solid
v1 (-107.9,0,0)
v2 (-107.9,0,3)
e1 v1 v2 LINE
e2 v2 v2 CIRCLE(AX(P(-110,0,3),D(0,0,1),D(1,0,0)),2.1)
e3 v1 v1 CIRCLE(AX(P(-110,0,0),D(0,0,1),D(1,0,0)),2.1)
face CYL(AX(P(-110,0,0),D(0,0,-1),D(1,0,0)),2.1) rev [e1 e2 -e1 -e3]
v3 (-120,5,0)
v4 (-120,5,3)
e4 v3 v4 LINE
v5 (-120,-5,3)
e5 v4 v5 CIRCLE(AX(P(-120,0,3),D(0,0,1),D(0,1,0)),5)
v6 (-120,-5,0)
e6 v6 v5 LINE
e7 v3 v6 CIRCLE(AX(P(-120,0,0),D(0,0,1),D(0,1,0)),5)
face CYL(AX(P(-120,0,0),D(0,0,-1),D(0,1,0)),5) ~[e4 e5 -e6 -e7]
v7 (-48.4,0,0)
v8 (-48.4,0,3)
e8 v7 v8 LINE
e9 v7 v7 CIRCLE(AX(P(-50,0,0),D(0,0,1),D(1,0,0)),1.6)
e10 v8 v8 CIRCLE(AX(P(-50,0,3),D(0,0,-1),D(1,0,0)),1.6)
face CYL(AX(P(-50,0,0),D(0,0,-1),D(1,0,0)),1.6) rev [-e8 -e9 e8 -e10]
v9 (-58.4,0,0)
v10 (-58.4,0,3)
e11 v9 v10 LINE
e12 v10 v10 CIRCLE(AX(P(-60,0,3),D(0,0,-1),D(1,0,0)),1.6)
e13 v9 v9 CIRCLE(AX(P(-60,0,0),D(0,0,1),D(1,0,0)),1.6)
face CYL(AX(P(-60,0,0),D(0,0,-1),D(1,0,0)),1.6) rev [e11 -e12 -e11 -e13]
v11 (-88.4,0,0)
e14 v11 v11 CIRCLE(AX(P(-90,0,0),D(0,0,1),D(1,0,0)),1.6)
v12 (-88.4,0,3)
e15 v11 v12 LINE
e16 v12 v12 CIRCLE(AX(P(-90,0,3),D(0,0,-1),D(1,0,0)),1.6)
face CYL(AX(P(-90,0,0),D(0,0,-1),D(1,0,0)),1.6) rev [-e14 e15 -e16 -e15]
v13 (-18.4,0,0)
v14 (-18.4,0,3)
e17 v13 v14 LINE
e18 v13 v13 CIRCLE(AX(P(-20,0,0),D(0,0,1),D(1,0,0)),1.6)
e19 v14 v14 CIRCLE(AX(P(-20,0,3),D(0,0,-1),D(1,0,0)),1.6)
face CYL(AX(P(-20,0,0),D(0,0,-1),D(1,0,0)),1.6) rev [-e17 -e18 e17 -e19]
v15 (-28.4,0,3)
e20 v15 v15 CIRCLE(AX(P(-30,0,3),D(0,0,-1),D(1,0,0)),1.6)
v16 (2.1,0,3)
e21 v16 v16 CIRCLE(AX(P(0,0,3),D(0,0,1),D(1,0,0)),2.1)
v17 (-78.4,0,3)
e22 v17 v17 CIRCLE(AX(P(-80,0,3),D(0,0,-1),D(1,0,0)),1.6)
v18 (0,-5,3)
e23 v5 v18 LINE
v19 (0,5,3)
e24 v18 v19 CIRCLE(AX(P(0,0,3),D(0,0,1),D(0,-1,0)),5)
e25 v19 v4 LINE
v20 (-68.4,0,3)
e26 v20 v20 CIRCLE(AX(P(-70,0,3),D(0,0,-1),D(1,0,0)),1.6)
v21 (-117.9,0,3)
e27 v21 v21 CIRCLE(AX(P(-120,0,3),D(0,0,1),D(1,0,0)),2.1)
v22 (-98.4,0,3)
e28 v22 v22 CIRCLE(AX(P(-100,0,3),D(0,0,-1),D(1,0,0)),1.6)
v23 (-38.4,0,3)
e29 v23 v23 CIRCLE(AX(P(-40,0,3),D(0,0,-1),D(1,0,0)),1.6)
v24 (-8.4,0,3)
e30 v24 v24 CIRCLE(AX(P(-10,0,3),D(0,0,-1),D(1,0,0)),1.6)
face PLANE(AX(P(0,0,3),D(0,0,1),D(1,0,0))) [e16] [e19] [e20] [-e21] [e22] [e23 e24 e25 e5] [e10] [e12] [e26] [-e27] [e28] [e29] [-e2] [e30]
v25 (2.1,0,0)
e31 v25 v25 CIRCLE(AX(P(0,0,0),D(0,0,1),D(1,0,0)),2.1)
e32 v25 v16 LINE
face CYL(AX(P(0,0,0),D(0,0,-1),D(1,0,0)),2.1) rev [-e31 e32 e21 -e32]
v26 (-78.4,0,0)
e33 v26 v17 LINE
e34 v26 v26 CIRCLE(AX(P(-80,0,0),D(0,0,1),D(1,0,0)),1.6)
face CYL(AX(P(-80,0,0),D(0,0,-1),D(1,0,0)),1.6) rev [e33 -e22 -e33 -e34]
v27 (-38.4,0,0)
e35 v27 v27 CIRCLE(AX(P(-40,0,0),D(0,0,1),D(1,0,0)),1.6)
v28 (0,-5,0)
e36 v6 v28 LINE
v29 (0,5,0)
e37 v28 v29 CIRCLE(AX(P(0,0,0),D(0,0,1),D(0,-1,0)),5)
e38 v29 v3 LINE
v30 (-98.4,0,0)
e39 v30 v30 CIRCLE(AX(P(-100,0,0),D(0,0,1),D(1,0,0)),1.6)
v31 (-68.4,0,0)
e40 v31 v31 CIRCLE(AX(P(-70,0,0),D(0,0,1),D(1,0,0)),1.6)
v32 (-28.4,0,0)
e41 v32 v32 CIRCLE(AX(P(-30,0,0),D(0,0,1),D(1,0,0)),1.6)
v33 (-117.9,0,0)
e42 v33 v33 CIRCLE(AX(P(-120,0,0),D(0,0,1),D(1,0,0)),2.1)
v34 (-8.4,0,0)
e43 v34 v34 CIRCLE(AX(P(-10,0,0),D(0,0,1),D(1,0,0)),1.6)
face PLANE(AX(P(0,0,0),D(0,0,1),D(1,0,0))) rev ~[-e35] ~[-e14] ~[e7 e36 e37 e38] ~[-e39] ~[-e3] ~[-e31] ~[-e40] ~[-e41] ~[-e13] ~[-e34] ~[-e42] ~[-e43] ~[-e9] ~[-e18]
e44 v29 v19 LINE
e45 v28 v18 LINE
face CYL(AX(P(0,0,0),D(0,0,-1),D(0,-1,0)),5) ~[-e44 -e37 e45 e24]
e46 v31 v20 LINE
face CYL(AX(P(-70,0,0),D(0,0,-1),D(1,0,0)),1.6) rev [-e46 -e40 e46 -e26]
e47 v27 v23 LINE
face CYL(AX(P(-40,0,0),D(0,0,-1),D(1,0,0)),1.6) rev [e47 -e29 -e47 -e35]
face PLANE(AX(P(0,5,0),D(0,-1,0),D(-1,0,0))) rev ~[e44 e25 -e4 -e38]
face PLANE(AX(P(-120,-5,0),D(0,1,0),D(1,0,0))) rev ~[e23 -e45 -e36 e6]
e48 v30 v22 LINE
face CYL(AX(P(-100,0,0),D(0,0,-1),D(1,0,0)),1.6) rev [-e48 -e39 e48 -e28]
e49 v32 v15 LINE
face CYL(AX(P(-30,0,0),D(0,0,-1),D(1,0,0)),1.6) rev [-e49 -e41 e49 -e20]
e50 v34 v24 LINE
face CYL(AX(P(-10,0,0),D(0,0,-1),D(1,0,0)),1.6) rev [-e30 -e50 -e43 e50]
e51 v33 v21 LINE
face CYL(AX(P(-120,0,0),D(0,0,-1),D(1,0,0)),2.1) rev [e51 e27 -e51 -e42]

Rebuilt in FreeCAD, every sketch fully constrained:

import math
import FreeCAD as App
import Part
import Sketcher

V = App.Vector

doc = App.newDocument("Part")
params = doc.addObject("Spreadsheet::Sheet", "Params")
for row, (alias, value) in enumerate([
    ("sketch1_radius", "5 mm"),
    ("sketch1_diameter", "4.2 mm"),
    ("sketch1_width", "120 mm"),
    ("pad1_length", "3 mm"),
    ("sketch2_diameter", "3.2 mm"),
    ("pocket1_length", "10 mm"),
], start=1):
    params.set(f"A{row}", alias)
    params.set(f"B{row}", "=" + value)
    params.setAlias(f"B{row}", alias)

body = doc.addObject("PartDesign::Body", "Body")

# Sketch on XY plane
sketch1 = doc.addObject("Sketcher::SketchObject", "Sketch")
body.addObject(sketch1)
sketch1.AttachmentSupport = (doc.XY_Plane, [""])
sketch1.MapMode = "FlatFace"
sketch1.addGeometry([
    Part.ArcOfCircle(Part.Circle(V(-120, 0, 0), V(0, 0, 1), 5), math.radians(90), math.radians(270)),  # 0
    Part.LineSegment(V(-120, -5, 0), V(0, -5, 0)),  # 1
    Part.ArcOfCircle(Part.Circle(V(0, 0, 0), V(0, 0, 1), 5), math.radians(-90), math.radians(90)),  # 2
    Part.LineSegment(V(0, 5, 0), V(-120, 5, 0)),  # 3
    Part.Circle(V(-120, 0, 0), V(0, 0, 1), 2.1),  # 4
    Part.Circle(V(-110, 0, 0), V(0, 0, 1), 2.1),  # 5
    Part.Circle(V(0, 0, 0), V(0, 0, 1), 2.1),  # 6
], False)
sketch1.addConstraint([
    Sketcher.Constraint("Tangent", 0, 2, 1, 1),
    Sketcher.Constraint("Tangent", 1, 2, 2, 1),
    Sketcher.Constraint("Tangent", 2, 2, 3, 1),
    Sketcher.Constraint("Tangent", 3, 2, 0, 1),
    Sketcher.Constraint("Horizontal", 1),
    Sketcher.Constraint("Horizontal", 3),
    Sketcher.Constraint("Coincident", 2, 3, -1, 1),
    Sketcher.Constraint("Coincident", 6, 3, -1, 1),
    Sketcher.Constraint("Coincident", 4, 3, 0, 3),
    Sketcher.Constraint("Equal", 4, 5),
    Sketcher.Constraint("Equal", 5, 6),
    Sketcher.Constraint("PointOnObject", 5, 3, -1),
    Sketcher.Constraint("Radius", 0, 5.0),
    Sketcher.Constraint("Diameter", 4, 4.2),
    Sketcher.Constraint("DistanceX", 1, 1, 1, 2, 120.0),
    Sketcher.Constraint("DistanceX", 0, 3, 5, 3, 10.0),
])
sketch1.setExpression("Constraints[12]", "Params.sketch1_radius")
sketch1.setExpression("Constraints[13]", "Params.sketch1_diameter")
sketch1.setExpression("Constraints[14]", "Params.sketch1_width")
pad1 = doc.addObject("PartDesign::Pad", "Pad")
body.addObject(pad1)
pad1.Profile = sketch1
pad1.setExpression("Length", "Params.pad1_length")

# Sketch on XY plane
sketch2 = doc.addObject("Sketcher::SketchObject", "Sketch001")
body.addObject(sketch2)
sketch2.AttachmentSupport = (doc.XY_Plane, [""])
sketch2.MapMode = "FlatFace"
sketch2.addGeometry([
    Part.Circle(V(-100, 0, 0), V(0, 0, 1), 1.6),  # 0
    Part.Circle(V(-90, 0, 0), V(0, 0, 1), 1.6),  # 1
    Part.Circle(V(-80, 0, 0), V(0, 0, 1), 1.6),  # 2
    Part.Circle(V(-70, 0, 0), V(0, 0, 1), 1.6),  # 3
    Part.Circle(V(-60, 0, 0), V(0, 0, 1), 1.6),  # 4
    Part.Circle(V(-50, 0, 0), V(0, 0, 1), 1.6),  # 5
    Part.Circle(V(-40, 0, 0), V(0, 0, 1), 1.6),  # 6
    Part.Circle(V(-30, 0, 0), V(0, 0, 1), 1.6),  # 7
    Part.Circle(V(-20, 0, 0), V(0, 0, 1), 1.6),  # 8
    Part.Circle(V(-10, 0, 0), V(0, 0, 1), 1.6),  # 9
], False)
sketch2.addConstraint([
    Sketcher.Constraint("Equal", 0, 1),
    Sketcher.Constraint("Equal", 1, 2),
    Sketcher.Constraint("Equal", 2, 3),
    Sketcher.Constraint("Equal", 3, 4),
    Sketcher.Constraint("Equal", 4, 5),
    Sketcher.Constraint("Equal", 5, 6),
    Sketcher.Constraint("Equal", 6, 7),
    Sketcher.Constraint("Equal", 7, 8),
    Sketcher.Constraint("Equal", 8, 9),
    Sketcher.Constraint("PointOnObject", 0, 3, -1),
    Sketcher.Constraint("PointOnObject", 1, 3, -1),
    Sketcher.Constraint("PointOnObject", 2, 3, -1),
    Sketcher.Constraint("PointOnObject", 3, 3, -1),
    Sketcher.Constraint("PointOnObject", 4, 3, -1),
    Sketcher.Constraint("PointOnObject", 5, 3, -1),
    Sketcher.Constraint("PointOnObject", 6, 3, -1),
    Sketcher.Constraint("PointOnObject", 7, 3, -1),
    Sketcher.Constraint("PointOnObject", 8, 3, -1),
    Sketcher.Constraint("PointOnObject", 9, 3, -1),
    Sketcher.Constraint("Diameter", 0, 3.2),
    Sketcher.Constraint("DistanceX", 9, 3, -1, 1, 10.0),
    Sketcher.Constraint("DistanceX", 0, 3, 1, 3, 10.0),
    Sketcher.Constraint("DistanceX", 1, 3, 2, 3, 10.0),
    Sketcher.Constraint("DistanceX", 2, 3, 3, 3, 10.0),
    Sketcher.Constraint("DistanceX", 3, 3, 4, 3, 10.0),
    Sketcher.Constraint("DistanceX", 4, 3, 5, 3, 10.0),
    Sketcher.Constraint("DistanceX", 5, 3, 6, 3, 10.0),
    Sketcher.Constraint("DistanceX", 6, 3, 7, 3, 10.0),
    Sketcher.Constraint("DistanceX", 7, 3, 8, 3, 10.0),
    Sketcher.Constraint("DistanceX", 8, 3, 9, 3, 10.0),
])
sketch2.setExpression("Constraints[19]", "Params.sketch2_diameter")
pocket1 = doc.addObject("PartDesign::Pocket", "Pocket")
body.addObject(pocket1)
pocket1.Profile = sketch2
pocket1.setExpression("Length", "Params.pocket1_length")
pocket1.Reversed = True

doc.recompute()
